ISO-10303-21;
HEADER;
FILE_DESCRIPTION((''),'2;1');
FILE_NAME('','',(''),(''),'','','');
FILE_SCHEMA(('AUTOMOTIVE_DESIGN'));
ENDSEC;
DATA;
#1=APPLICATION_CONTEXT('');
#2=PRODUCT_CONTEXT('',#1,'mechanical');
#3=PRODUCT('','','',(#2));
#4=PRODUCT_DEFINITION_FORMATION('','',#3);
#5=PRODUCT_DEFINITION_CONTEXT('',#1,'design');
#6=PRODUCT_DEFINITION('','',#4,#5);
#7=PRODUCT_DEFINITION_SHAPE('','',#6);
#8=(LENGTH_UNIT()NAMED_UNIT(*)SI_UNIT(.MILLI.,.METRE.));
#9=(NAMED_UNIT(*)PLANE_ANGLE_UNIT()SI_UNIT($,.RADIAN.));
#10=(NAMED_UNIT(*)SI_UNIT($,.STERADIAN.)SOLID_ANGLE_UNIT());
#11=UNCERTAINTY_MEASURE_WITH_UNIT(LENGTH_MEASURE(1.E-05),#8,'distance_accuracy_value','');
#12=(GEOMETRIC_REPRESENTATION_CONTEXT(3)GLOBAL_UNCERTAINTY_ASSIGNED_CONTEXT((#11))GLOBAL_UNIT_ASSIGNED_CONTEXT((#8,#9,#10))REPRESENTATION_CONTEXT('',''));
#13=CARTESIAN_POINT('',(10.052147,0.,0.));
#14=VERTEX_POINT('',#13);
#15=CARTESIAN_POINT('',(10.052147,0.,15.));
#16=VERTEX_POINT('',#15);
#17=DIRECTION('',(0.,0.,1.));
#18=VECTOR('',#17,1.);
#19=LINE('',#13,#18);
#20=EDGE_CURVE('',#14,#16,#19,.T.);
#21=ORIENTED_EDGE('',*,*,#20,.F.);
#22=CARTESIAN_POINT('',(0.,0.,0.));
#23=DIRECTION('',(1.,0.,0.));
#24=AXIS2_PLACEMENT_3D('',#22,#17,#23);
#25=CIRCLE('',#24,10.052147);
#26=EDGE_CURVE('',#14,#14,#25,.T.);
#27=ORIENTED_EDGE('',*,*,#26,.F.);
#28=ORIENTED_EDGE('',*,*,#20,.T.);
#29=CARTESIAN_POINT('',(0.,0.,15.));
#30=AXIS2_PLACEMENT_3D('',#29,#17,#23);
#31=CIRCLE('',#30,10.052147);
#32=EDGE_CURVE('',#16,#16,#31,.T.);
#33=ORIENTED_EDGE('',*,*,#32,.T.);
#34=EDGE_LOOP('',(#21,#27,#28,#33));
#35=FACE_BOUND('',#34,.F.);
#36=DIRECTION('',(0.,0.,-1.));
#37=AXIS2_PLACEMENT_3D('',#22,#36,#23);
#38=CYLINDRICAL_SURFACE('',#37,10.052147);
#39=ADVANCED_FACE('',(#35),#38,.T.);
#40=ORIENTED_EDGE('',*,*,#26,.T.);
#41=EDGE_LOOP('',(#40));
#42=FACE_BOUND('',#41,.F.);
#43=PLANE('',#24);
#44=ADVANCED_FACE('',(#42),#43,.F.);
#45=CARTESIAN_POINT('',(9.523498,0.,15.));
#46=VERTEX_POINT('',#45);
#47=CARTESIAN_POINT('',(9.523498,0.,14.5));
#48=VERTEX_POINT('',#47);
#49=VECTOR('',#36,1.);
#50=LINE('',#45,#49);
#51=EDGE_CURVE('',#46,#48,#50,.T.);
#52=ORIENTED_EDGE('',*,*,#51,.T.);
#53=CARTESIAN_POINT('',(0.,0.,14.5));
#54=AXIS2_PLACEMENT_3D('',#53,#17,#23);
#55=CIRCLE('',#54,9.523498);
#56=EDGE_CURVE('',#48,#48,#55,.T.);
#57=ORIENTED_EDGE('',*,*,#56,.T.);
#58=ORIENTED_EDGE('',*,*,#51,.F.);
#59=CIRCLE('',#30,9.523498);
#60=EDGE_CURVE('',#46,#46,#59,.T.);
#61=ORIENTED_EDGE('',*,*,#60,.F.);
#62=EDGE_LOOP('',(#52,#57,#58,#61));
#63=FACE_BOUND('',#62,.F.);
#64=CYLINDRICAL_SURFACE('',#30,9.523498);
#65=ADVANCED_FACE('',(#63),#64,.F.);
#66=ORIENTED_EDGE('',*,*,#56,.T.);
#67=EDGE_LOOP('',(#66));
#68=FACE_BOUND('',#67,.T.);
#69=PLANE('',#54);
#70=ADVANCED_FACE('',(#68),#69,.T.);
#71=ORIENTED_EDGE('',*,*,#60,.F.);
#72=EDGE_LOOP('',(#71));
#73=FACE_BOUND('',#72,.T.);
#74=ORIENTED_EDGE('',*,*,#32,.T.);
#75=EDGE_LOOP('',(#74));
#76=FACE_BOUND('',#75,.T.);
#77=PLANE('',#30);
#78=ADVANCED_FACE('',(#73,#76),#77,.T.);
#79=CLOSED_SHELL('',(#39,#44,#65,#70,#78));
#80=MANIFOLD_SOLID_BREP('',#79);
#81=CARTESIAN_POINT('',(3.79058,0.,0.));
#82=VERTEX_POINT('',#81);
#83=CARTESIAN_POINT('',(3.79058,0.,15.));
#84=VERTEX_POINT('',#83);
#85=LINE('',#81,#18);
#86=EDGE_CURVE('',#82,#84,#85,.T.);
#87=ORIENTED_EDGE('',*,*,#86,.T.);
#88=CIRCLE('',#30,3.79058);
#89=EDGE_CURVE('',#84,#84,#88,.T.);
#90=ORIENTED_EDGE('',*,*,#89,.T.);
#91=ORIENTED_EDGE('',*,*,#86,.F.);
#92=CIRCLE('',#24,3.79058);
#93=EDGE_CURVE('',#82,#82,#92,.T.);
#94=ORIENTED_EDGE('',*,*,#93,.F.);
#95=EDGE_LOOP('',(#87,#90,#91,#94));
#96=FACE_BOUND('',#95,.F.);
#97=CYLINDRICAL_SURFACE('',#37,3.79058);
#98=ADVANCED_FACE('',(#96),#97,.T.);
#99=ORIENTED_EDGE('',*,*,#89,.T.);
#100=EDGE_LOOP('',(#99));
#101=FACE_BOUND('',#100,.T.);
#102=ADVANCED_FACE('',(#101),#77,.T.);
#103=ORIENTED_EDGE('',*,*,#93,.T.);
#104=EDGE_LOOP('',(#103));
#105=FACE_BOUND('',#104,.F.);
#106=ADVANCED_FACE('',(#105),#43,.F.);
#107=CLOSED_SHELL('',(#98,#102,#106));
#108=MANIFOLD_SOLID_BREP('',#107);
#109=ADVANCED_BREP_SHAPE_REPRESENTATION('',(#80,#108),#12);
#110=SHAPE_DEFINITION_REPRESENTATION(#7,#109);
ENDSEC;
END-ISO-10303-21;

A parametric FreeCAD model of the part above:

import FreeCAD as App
import Part
import Sketcher
from FreeCAD import Vector
Q = App.Units.Quantity

doc = App.newDocument("Part")
body = doc.addObject("PartDesign::Body", "Body")

sketch1 = doc.addObject("Sketcher::SketchObject", "Sketch")
body.addObject(sketch1)
sketch1.AttachmentSupport = (doc.XY_Plane, [""])
sketch1.MapMode = "FlatFace"
sketch1.addGeometry(Part.Circle(Vector(0, 0, 0), Vector(0, 0, 1), 10), False)
sketch1.addConstraint(Sketcher.Constraint("Coincident", 0, 3, -1, 1))
sketch1.addConstraint(Sketcher.Constraint("Diameter", 0, Q("20.104294 mm")))
pad1 = doc.addObject("PartDesign::Pad", "Pad")
body.addObject(pad1)
pad1.Profile = sketch1
pad1.Length = 15

sketch2 = doc.addObject("Sketcher::SketchObject", "Sketch001")
body.addObject(sketch2)
sketch2.AttachmentSupport = (doc.XY_Plane, [""])
sketch2.MapMode = "FlatFace"
sketch2.AttachmentOffset = App.Placement(Vector(0, 0, 15), App.Rotation())
sketch2.addGeometry(Part.Circle(Vector(0, 0, 0), Vector(0, 0, 1), 10), False)
sketch2.addConstraint(Sketcher.Constraint("Coincident", 0, 3, -1, 1))
sketch2.addConstraint(Sketcher.Constraint("Diameter", 0, Q("19.046996 mm")))
pocket1 = doc.addObject("PartDesign::Pocket", "Pocket")
body.addObject(pocket1)
pocket1.Profile = sketch2
pocket1.Length = 0.5
body2 = doc.addObject("PartDesign::Body", "Body001")

sketch3 = doc.addObject("Sketcher::SketchObject", "Sketch002")
body2.addObject(sketch3)
sketch3.AttachmentSupport = (doc.getObject("XY_Plane001"), [""])
sketch3.MapMode = "FlatFace"
sketch3.addGeometry(Part.Circle(Vector(0, 0, 0), Vector(0, 0, 1), 3.8), False)
sketch3.addConstraint(Sketcher.Constraint("Coincident", 0, 3, -1, 1))
sketch3.addConstraint(Sketcher.Constraint("Diameter", 0, Q("7.58116 mm")))
pad2 = doc.addObject("PartDesign::Pad", "Pad001")
body2.addObject(pad2)
pad2.Profile = sketch3
pad2.Length = 15

doc.recompute()
